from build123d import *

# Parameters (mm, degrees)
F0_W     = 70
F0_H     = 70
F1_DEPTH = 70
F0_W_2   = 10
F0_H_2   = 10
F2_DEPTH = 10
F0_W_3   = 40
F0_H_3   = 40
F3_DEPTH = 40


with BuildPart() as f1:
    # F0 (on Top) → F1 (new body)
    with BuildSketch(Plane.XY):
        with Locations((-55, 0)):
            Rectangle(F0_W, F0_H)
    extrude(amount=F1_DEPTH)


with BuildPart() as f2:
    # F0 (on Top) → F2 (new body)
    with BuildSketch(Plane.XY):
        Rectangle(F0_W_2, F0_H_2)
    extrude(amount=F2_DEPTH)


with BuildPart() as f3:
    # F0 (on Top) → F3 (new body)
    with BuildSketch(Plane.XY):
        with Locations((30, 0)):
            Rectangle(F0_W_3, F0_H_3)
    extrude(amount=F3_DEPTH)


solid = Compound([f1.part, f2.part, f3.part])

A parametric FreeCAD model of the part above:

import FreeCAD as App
import Part
import Sketcher
from FreeCAD import Vector


def add_polygon(sketch, points):
    """Adds a closed chain of lines whose ends are joined by coincident constraints."""
    first, n = sketch.GeometryCount, len(points)
    for a, b in zip(points, points[1:] + points[:1]):
        sketch.addGeometry(Part.LineSegment(App.Vector(*a, 0), App.Vector(*b, 0)), False)
    for i in range(n):
        sketch.addConstraint(Sketcher.Constraint("Coincident", first + i, 2, first + (i + 1) % n, 1))

doc = App.newDocument("Part")
params = doc.addObject("Spreadsheet::Sheet", "Params")
for row, (alias, value) in enumerate([
    ("sketch1_width", "70 mm"),
    ("pad1_length", "70 mm"),
    ("sketch2_width", "10 mm"),
    ("pad2_length", "10 mm"),
    ("sketch3_width", "40 mm"),
    ("pad3_length", "40 mm"),
], start=1):
    params.set(f"A{row}", alias)
    params.set(f"B{row}", "=" + value)
    params.setAlias(f"B{row}", alias)

body = doc.addObject("PartDesign::Body", "Body")

sketch1 = doc.addObject("Sketcher::SketchObject", "Sketch")
body.addObject(sketch1)
sketch1.AttachmentSupport = (doc.XY_Plane, [""])
sketch1.MapMode = "FlatFace"
add_polygon(sketch1, [(-90, 35), (-90, -35), (-20, -35), (-20, 35)])
sketch1.addConstraint(Sketcher.Constraint("Vertical", 0))
sketch1.addConstraint(Sketcher.Constraint("Horizontal", 1))
sketch1.addConstraint(Sketcher.Constraint("Vertical", 2))
sketch1.addConstraint(Sketcher.Constraint("Horizontal", 3))
sketch1.addConstraint(Sketcher.Constraint("Equal", 3, 0))
sketch1.addConstraint(Sketcher.Constraint("DistanceX", 1, 1, 1, 2, 70.0))
sketch1.addConstraint(Sketcher.Constraint("DistanceX", 0, 2, -1, 1, 90.0))
sketch1.addConstraint(Sketcher.Constraint("DistanceY", 0, 2, -1, 1, 35.0))
sketch1.setExpression("Constraints[9]", "Params.sketch1_width")
pad1 = doc.addObject("PartDesign::Pad", "Pad")
body.addObject(pad1)
pad1.Profile = sketch1
pad1.setExpression("Length", "Params.pad1_length")
body2 = doc.addObject("PartDesign::Body", "Body001")

sketch2 = doc.addObject("Sketcher::SketchObject", "Sketch001")
body2.addObject(sketch2)
sketch2.AttachmentSupport = (doc.getObject("XY_Plane001"), [""])
sketch2.MapMode = "FlatFace"
add_polygon(sketch2, [(-5, 5), (-5, -5), (5, -5), (5, 5)])
sketch2.addConstraint(Sketcher.Constraint("Vertical", 0))
sketch2.addConstraint(Sketcher.Constraint("Horizontal", 1))
sketch2.addConstraint(Sketcher.Constraint("Vertical", 2))
sketch2.addConstraint(Sketcher.Constraint("Horizontal", 3))
sketch2.addConstraint(Sketcher.Constraint("Symmetric", 0, 2, 2, 2, -1, 1))
sketch2.addConstraint(Sketcher.Constraint("Equal", 3, 0))
sketch2.addConstraint(Sketcher.Constraint("DistanceX", 1, 1, 1, 2, 10.0))
sketch2.setExpression("Constraints[10]", "Params.sketch2_width")
pad2 = doc.addObject("PartDesign::Pad", "Pad001")
body2.addObject(pad2)
pad2.Profile = sketch2
pad2.setExpression("Length", "Params.pad2_length")
body3 = doc.addObject("PartDesign::Body", "Body002")

sketch3 = doc.addObject("Sketcher::SketchObject", "Sketch002")
body3.addObject(sketch3)
sketch3.AttachmentSupport = (doc.getObject("XY_Plane002"), [""])
sketch3.MapMode = "FlatFace"
add_polygon(sketch3, [(10, 20), (10, -20), (50, -20), (50, 20)])
sketch3.addConstraint(Sketcher.Constraint("Vertical", 0))
sketch3.addConstraint(Sketcher.Constraint("Horizontal", 1))
sketch3.addConstraint(Sketcher.Constraint("Vertical", 2))
sketch3.addConstraint(Sketcher.Constraint("Horizontal", 3))
sketch3.addConstraint(Sketcher.Constraint("Equal", 3, 0))
sketch3.addConstraint(Sketcher.Constraint("DistanceX", 1, 1, 1, 2, 40.0))
sketch3.addConstraint(Sketcher.Constraint("DistanceX", -1, 1, 0, 2, 10.0))
sketch3.addConstraint(Sketcher.Constraint("DistanceY", 0, 2, -1, 1, 20.0))
sketch3.setExpression("Constraints[9]", "Params.sketch3_width")
pad3 = doc.addObject("PartDesign::Pad", "Pad002")
body3.addObject(pad3)
pad3.Profile = sketch3
pad3.setExpression("Length", "Params.pad3_length")

doc.recompute()
